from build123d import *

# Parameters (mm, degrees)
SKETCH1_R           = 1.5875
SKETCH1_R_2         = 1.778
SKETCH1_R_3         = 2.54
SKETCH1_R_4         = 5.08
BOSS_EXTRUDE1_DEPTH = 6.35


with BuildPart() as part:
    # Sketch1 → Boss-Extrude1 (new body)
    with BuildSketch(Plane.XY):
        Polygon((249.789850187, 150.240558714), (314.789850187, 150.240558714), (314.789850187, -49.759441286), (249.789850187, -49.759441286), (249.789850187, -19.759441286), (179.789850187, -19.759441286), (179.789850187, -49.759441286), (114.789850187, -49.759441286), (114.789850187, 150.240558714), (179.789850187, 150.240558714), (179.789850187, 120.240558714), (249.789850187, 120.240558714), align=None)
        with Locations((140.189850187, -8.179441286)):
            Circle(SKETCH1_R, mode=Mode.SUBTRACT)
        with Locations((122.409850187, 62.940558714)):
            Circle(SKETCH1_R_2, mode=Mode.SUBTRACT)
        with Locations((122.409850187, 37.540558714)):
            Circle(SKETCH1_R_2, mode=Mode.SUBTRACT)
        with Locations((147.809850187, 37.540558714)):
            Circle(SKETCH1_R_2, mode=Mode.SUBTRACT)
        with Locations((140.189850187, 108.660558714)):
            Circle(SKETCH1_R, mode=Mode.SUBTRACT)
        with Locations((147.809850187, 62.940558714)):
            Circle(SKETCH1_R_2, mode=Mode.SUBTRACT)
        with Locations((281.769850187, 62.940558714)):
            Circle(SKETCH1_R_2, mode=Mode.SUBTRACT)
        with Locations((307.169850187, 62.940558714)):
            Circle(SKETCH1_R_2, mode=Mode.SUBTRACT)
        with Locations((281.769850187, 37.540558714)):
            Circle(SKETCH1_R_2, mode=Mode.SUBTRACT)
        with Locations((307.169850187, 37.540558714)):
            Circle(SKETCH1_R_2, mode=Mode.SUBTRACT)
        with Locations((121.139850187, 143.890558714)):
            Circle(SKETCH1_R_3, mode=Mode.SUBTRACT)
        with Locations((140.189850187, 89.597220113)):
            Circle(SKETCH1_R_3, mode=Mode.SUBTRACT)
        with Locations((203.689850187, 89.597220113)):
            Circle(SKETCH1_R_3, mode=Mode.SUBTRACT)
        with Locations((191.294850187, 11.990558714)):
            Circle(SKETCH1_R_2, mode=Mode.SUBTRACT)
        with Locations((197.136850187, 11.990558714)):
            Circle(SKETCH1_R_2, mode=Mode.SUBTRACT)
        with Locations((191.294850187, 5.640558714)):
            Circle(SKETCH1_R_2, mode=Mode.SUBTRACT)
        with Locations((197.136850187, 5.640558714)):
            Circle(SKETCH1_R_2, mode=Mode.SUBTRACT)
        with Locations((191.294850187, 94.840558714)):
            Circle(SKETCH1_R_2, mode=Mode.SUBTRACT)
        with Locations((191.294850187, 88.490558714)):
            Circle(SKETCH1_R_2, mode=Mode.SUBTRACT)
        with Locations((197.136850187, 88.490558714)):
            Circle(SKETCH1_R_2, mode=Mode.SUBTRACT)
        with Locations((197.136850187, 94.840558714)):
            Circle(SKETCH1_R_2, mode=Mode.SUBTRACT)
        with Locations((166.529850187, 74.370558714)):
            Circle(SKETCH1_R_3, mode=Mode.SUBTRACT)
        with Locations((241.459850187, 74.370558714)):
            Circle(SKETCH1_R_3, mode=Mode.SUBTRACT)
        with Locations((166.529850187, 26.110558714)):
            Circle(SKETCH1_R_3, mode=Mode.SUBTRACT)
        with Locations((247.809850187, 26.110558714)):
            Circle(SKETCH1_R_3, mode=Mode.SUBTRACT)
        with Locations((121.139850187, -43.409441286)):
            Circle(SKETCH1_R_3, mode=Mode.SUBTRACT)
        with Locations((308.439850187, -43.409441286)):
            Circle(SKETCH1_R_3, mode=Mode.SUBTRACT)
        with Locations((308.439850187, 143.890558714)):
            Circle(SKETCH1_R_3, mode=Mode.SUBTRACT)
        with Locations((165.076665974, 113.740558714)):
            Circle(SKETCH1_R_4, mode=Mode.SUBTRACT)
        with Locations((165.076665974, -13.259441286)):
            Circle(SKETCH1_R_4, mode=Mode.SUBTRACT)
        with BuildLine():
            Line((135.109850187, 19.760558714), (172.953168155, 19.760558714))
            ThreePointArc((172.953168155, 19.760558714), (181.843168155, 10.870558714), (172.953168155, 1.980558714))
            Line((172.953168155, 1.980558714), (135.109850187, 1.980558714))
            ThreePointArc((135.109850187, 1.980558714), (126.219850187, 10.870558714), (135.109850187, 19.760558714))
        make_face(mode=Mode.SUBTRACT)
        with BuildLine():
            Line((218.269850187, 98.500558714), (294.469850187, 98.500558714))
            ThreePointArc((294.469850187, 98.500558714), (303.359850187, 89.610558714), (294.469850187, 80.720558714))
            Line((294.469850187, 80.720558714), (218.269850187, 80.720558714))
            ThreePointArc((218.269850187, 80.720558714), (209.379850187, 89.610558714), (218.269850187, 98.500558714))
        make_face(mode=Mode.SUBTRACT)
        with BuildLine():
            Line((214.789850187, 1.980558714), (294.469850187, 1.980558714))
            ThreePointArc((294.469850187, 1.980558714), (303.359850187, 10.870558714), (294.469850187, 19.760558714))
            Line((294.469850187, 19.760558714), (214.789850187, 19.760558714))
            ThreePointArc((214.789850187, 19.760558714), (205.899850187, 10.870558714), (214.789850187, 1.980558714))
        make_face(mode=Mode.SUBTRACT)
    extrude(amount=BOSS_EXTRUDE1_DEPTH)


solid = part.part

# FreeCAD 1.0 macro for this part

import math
import FreeCAD as App
import Part
import Sketcher

V = App.Vector
Q = App.Units.Quantity


def add_polygon(sketch, points):
    """Adds a closed chain of lines whose ends are joined by coincident constraints."""
    first, n = sketch.GeometryCount, len(points)
    for a, b in zip(points, points[1:] + points[:1]):
        sketch.addGeometry(Part.LineSegment(App.Vector(*a, 0), App.Vector(*b, 0)), False)
    for i in range(n):
        sketch.addConstraint(Sketcher.Constraint("Coincident", first + i, 2, first + (i + 1) % n, 1))

doc = App.newDocument("Part")
body = doc.addObject("PartDesign::Body", "Body")

# Sketch on XY plane
sketch1 = body.newObject("Sketcher::SketchObject", "Sketch")
sketch1.AttachmentSupport = (doc.getObject("XY_Plane"), [""])
sketch1.MapMode = "FlatFace"
add_polygon(sketch1, [(314.8, 150.2), (249.8, 150.2), (249.8, 120.2), (179.8, 120.2), (179.8, 150.2), (114.8, 150.2), (114.8, -49.8), (179.8, -49.8), (179.8, -19.8), (249.8, -19.8), (249.8, -49.8), (314.8, -49.8)])  # lines 0-11
sketch1.addGeometry(Part.Circle(V(308.4, -43.4, 0), V(0, 0, 1), 2.5), False)  # 12
sketch1.addGeometry(Part.Circle(V(307.2, 37.5, 0), V(0, 0, 1), 1.8), False)  # 13
sketch1.addGeometry(Part.Circle(V(281.8, 37.5, 0), V(0, 0, 1), 1.8), False)  # 14
sketch1.addGeometry(Part.ArcOfCircle(Part.Circle(V(214.8, 10.9, 0), V(0, 0, 1), 8.9), math.radians(90), math.radians(270)), False)  # 15
sketch1.addGeometry(Part.LineSegment(V(214.8, 19.8, 0), V(294.5, 19.8, 0)), False)  # 16
sketch1.addGeometry(Part.ArcOfCircle(Part.Circle(V(294.5, 10.9, 0), V(0, 0, 1), 8.9), math.radians(-90), math.radians(90)), False)  # 17
sketch1.addGeometry(Part.LineSegment(V(294.5, 2, 0), V(214.8, 2, 0)), False)  # 18
sketch1.addGeometry(Part.Circle(V(247.8, 26.1, 0), V(0, 0, 1), 2.5), False)  # 19
sketch1.addGeometry(Part.Circle(V(121.1, -43.4, 0), V(0, 0, 1), 2.5), False)  # 20
sketch1.addGeometry(Part.Circle(V(165.1, -13.3, 0), V(0, 0, 1), 5.1), False)  # 21
sketch1.addGeometry(Part.Circle(V(140.2, -8.2, 0), V(0, 0, 1), 1.6), False)  # 22
sketch1.addGeometry(Part.Circle(V(197.1, 5.6, 0), V(0, 0, 1), 1.8), False)  # 23
sketch1.addGeometry(Part.Circle(V(191.3, 5.6, 0), V(0, 0, 1), 1.8), False)  # 24
sketch1.addGeometry(Part.Circle(V(197.1, 12, 0), V(0, 0, 1), 1.8), False)  # 25
sketch1.addGeometry(Part.Circle(V(191.3, 12, 0), V(0, 0, 1), 1.8), False)  # 26
sketch1.addGeometry(Part.LineSegment(V(135.1, 19.8, 0), V(173, 19.8, 0)), False)  # 27
sketch1.addGeometry(Part.ArcOfCircle(Part.Circle(V(173, 10.9, 0), V(0, 0, 1), 8.9), math.radians(-90), math.radians(90)), False)  # 28
sketch1.addGeometry(Part.LineSegment(V(173, 2, 0), V(135.1, 2, 0)), False)  # 29
sketch1.addGeometry(Part.ArcOfCircle(Part.Circle(V(135.1, 10.9, 0), V(0, 0, 1), 8.9), math.radians(90), math.radians(270)), False)  # 30
sketch1.addGeometry(Part.Circle(V(166.5, 26.1, 0), V(0, 0, 1), 2.5), False)  # 31
sketch1.addGeometry(Part.Circle(V(147.8, 37.5, 0), V(0, 0, 1), 1.8), False)  # 32
sketch1.addGeometry(Part.Circle(V(122.4, 37.5, 0), V(0, 0, 1), 1.8), False)  # 33
sketch1.addGeometry(Part.Circle(V(307.2, 62.9, 0), V(0, 0, 1), 1.8), False)  # 34
sketch1.addGeometry(Part.Circle(V(281.8, 62.9, 0), V(0, 0, 1), 1.8), False)  # 35
sketch1.addGeometry(Part.Circle(V(241.5, 74.4, 0), V(0, 0, 1), 2.5), False)  # 36
sketch1.addGeometry(Part.LineSegment(V(218.3, 98.5, 0), V(294.5, 98.5, 0)), False)  # 37
sketch1.addGeometry(Part.ArcOfCircle(Part.Circle(V(294.5, 89.6, 0), V(0, 0, 1), 8.9), math.radians(-90), math.radians(90)), False)  # 38
sketch1.addGeometry(Part.LineSegment(V(294.5, 80.7, 0), V(218.3, 80.7, 0)), False)  # 39
sketch1.addGeometry(Part.ArcOfCircle(Part.Circle(V(218.3, 89.6, 0), V(0, 0, 1), 8.9), math.radians(90), math.radians(270)), False)  # 40
sketch1.addGeometry(Part.Circle(V(308.4, 143.9, 0), V(0, 0, 1), 2.5), False)  # 41
sketch1.addGeometry(Part.Circle(V(203.7, 89.6, 0), V(0, 0, 1), 2.5), False)  # 42
sketch1.addGeometry(Part.Circle(V(197.1, 88.5, 0), V(0, 0, 1), 1.8), False)  # 43
sketch1.addGeometry(Part.Circle(V(191.3, 88.5, 0), V(0, 0, 1), 1.8), False)  # 44
sketch1.addGeometry(Part.Circle(V(197.1, 94.8, 0), V(0, 0, 1), 1.8), False)  # 45
sketch1.addGeometry(Part.Circle(V(191.3, 94.8, 0), V(0, 0, 1), 1.8), False)  # 46
sketch1.addGeometry(Part.Circle(V(147.8, 62.9, 0), V(0, 0, 1), 1.8), False)  # 47
sketch1.addGeometry(Part.Circle(V(122.4, 62.9, 0), V(0, 0, 1), 1.8), False)  # 48
sketch1.addGeometry(Part.Circle(V(166.5, 74.4, 0), V(0, 0, 1), 2.5), False)  # 49
sketch1.addGeometry(Part.Circle(V(140.2, 89.6, 0), V(0, 0, 1), 2.5), False)  # 50
sketch1.addGeometry(Part.Circle(V(165.1, 113.7, 0), V(0, 0, 1), 5.1), False)  # 51
sketch1.addGeometry(Part.Circle(V(140.2, 108.7, 0), V(0, 0, 1), 1.6), False)  # 52
sketch1.addGeometry(Part.Circle(V(121.1, 143.9, 0), V(0, 0, 1), 2.5), False)  # 53
sketch1.addConstraint([
    Sketcher.Constraint("Tangent", 15, 1, 16, 1),
    Sketcher.Constraint("Tangent", 16, 2, 17, 2),
    Sketcher.Constraint("Tangent", 17, 1, 18, 1),
    Sketcher.Constraint("Tangent", 18, 2, 15, 2),
    Sketcher.Constraint("Tangent", 27, 2, 28, 2),
    Sketcher.Constraint("Tangent", 28, 1, 29, 1),
    Sketcher.Constraint("Tangent", 29, 2, 30, 2),
    Sketcher.Constraint("Tangent", 30, 1, 27, 1),
    Sketcher.Constraint("Tangent", 37, 2, 38, 2),
    Sketcher.Constraint("Tangent", 38, 1, 39, 1),
    Sketcher.Constraint("Tangent", 39, 2, 40, 2),
    Sketcher.Constraint("Tangent", 40, 1, 37, 1),
    Sketcher.Constraint("Horizontal", 0),
    Sketcher.Constraint("Vertical", 1),
    Sketcher.Constraint("Horizontal", 2),
    Sketcher.Constraint("Vertical", 3),
    Sketcher.Constraint("Horizontal", 4),
    Sketcher.Constraint("Vertical", 5),
    Sketcher.Constraint("Horizontal", 6),
    Sketcher.Constraint("Vertical", 7),
    Sketcher.Constraint("Horizontal", 8),
    Sketcher.Constraint("Vertical", 9),
    Sketcher.Constraint("Horizontal", 10),
    Sketcher.Constraint("Vertical", 11),
    Sketcher.Constraint("Horizontal", 16),
    Sketcher.Constraint("Horizontal", 18),
    Sketcher.Constraint("Horizontal", 27),
    Sketcher.Constraint("Horizontal", 29),
    Sketcher.Constraint("Horizontal", 37),
    Sketcher.Constraint("Horizontal", 39),
    Sketcher.Constraint("Equal", 13, 14),
    Sketcher.Constraint("Equal", 12, 19),
    Sketcher.Constraint("Equal", 19, 20),
    Sketcher.Constraint("Equal", 14, 23),
    Sketcher.Constraint("Equal", 23, 24),
    Sketcher.Constraint("Equal", 24, 25),
    Sketcher.Constraint("Equal", 25, 26),
    Sketcher.Constraint("Equal", 17, 28),
    Sketcher.Constraint("Equal", 20, 31),
    Sketcher.Constraint("Equal", 26, 32),
    Sketcher.Constraint("Equal", 32, 33),
    Sketcher.Constraint("Equal", 33, 34),
    Sketcher.Constraint("Equal", 34, 35),
    Sketcher.Constraint("Equal", 31, 36),
    Sketcher.Constraint("Equal", 30, 38),
    Sketcher.Constraint("Equal", 36, 41),
    Sketcher.Constraint("Equal", 41, 42),
    Sketcher.Constraint("Equal", 35, 43),
    Sketcher.Constraint("Equal", 43, 44),
    Sketcher.Constraint("Equal", 44, 45),
    Sketcher.Constraint("Equal", 45, 46),
    Sketcher.Constraint("Equal", 46, 47),
    Sketcher.Constraint("Equal", 47, 48),
    Sketcher.Constraint("Equal", 42, 49),
    Sketcher.Constraint("Equal", 49, 50),
    Sketcher.Constraint("Equal", 21, 51),
    Sketcher.Constraint("Equal", 22, 52),
    Sketcher.Constraint("Equal", 50, 53),
    Sketcher.Constraint("Horizontal", 13, 3, 14, 3),
    Sketcher.Constraint("Horizontal", 12, 3, 20, 3),
    Sketcher.Constraint("Horizontal", 23, 3, 24, 3),
    Sketcher.Constraint("Horizontal", 25, 3, 26, 3),
    Sketcher.Constraint("Horizontal", 17, 3, 28, 3),
    Sketcher.Constraint("Horizontal", 19, 3, 31, 3),
    Sketcher.Constraint("Horizontal", 14, 3, 32, 3),
    Sketcher.Constraint("Horizontal", 32, 3, 33, 3),
    Sketcher.Constraint("Horizontal", 34, 3, 35, 3),
    Sketcher.Constraint("Horizontal", 43, 3, 44, 3),
    Sketcher.Constraint("Horizontal", 45, 3, 46, 3),
    Sketcher.Constraint("Horizontal", 35, 3, 47, 3),
    Sketcher.Constraint("Horizontal", 47, 3, 48, 3),
    Sketcher.Constraint("Horizontal", 36, 3, 49, 3),
    Sketcher.Constraint("Horizontal", 42, 3, 50, 3),
    Sketcher.Constraint("Horizontal", 41, 3, 53, 3),
    Sketcher.Constraint("Horizontal", 0, 2, 3, 2),
    Sketcher.Constraint("Horizontal", 6, 2, 9, 2),
    Sketcher.Constraint("Vertical", 23, 3, 25, 3),
    Sketcher.Constraint("Vertical", 24, 3, 26, 3),
    Sketcher.Constraint("Vertical", 13, 3, 34, 3),
    Sketcher.Constraint("Vertical", 14, 3, 35, 3),
    Sketcher.Constraint("Vertical", 17, 3, 38, 3),
    Sketcher.Constraint("Vertical", 12, 3, 41, 3),
    Sketcher.Constraint("Vertical", 25, 3, 43, 3),
    Sketcher.Constraint("Vertical", 26, 3, 44, 3),
    Sketcher.Constraint("Vertical", 43, 3, 45, 3),
    Sketcher.Constraint("Vertical", 44, 3, 46, 3),
    Sketcher.Constraint("Vertical", 32, 3, 47, 3),
    Sketcher.Constraint("Vertical", 33, 3, 48, 3),
    Sketcher.Constraint("Vertical", 31, 3, 49, 3),
    Sketcher.Constraint("Vertical", 22, 3, 50, 3),
    Sketcher.Constraint("Vertical", 21, 3, 51, 3),
    Sketcher.Constraint("Vertical", 50, 3, 52, 3),
    Sketcher.Constraint("Vertical", 20, 3, 53, 3),
    Sketcher.Constraint("Vertical", 3, 2, 6, 2),
    Sketcher.Constraint("Vertical", 1, 2, 8, 2),
    Sketcher.Constraint("Equal", 0, 4),
    Sketcher.Constraint("Equal", 3, 7),
    Sketcher.Constraint("Diameter", 12, Q("0.2 in")),
    Sketcher.Constraint("Diameter", 21, Q("0.4 in")),
    Sketcher.Constraint("Diameter", 13, Q("0.14 in")),
    Sketcher.Constraint("DistanceX", 37, 1, 37, 2, Q("3 in")),
    Sketcher.Constraint("Radius", 15, Q("0.35 in")),
    Sketcher.Constraint("Diameter", 22, Q("0.125 in")),
    Sketcher.Constraint("DistanceX", 14, 3, 13, 3, Q("1 in")),
    Sketcher.Constraint("DistanceY", 21, 3, 14, 3, Q("2 in")),
    Sketcher.Constraint("DistanceX", 33, 3, 32, 3, Q("1 in")),
    Sketcher.Constraint("DistanceY", 13, 3, 34, 3, Q("1 in")),
    Sketcher.Constraint("DistanceY", 46, 3, 2, 2, Q("1 in")),
    Sketcher.Constraint("DistanceX", 4, 2, 52, 3, Q("1 in")),
    Sketcher.Constraint("DistanceY", 7, 2, 24, 3, Q("1 in")),
    Sketcher.Constraint("DistanceX", 17, 3, 13, 3, Q("0.5 in")),
    Sketcher.Constraint("DistanceX", 15, 3, 19, 3, Q("1.3 in")),
    Sketcher.Constraint("DistanceY", 15, 3, 19, 3, Q("0.6 in")),
    Sketcher.Constraint("DistanceY", 21, 3, 22, 3, Q("0.2 in")),
    Sketcher.Constraint("DistanceX", 30, 3, 22, 3, Q("0.2 in")),
    Sketcher.Constraint("DistanceX", 30, 3, 32, 3, Q("0.5 in")),
    Sketcher.Constraint("DistanceY", 19, 3, 36, 3, Q("1.9 in")),
    Sketcher.Constraint("DistanceY", 36, 3, 38, 3, Q("0.6 in")),
    Sketcher.Constraint("DistanceX", 32, 3, 42, 3, Q("2.2 in")),
    Sketcher.Constraint("DistanceY", 52, 3, 51, 3, Q("0.2 in")),
    Sketcher.Constraint("DistanceY", 47, 3, 52, 3, Q("1.8 in")),
    Sketcher.Constraint("DistanceX", 17, 3, 10, 2, Q("0.8 in")),
    Sketcher.Constraint("DistanceY", 16, 2, 13, 3, Q("0.7 in")),
    Sketcher.Constraint("DistanceX", 13, 3, 12, 3, Q("0.05 in")),
    Sketcher.Constraint("DistanceX", 20, 3, 22, 3, Q("0.75 in")),
    Sketcher.Constraint("DistanceX", 24, 3, 23, 3, Q("0.23 in")),
    Sketcher.Constraint("DistanceY", 23, 3, 25, 3, Q("0.25 in")),
    Sketcher.Constraint("DistanceX", 36, 3, 19, 3, Q("0.25 in")),
    Sketcher.Constraint("DistanceY", 43, 3, 45, 3, Q("0.25 in")),
    Sketcher.Constraint("DistanceY", 41, 3, 0, 2, Q("0.25 in")),
    Sketcher.Constraint("DistanceY", 5, 2, 20, 3, Q("0.25 in")),
    Sketcher.Constraint("DistanceX", 23, 3, 15, 3, Q("0.695 in")),
    Sketcher.Constraint("DistanceX", 31, 3, 26, 3, Q("0.975 in")),
    Sketcher.Constraint("DistanceX", 0, 2, 0, 1, Q("65 mm")),
    Sketcher.Constraint("DistanceX", 2, 2, 2, 1, Q("70 mm")),
    Sketcher.Constraint("DistanceX", 16, 1, 16, 2, Q("79.68 mm")),
    Sketcher.Constraint("DistanceY", 1, 2, 1, 1, Q("30 mm")),
    Sketcher.Constraint("DistanceY", 5, 2, 5, 1, Q("200 mm")),
    Sketcher.Constraint("DistanceY", 12, 3, 13, 3, Q("80.95 mm")),
    Sketcher.Constraint("DistanceX", 27, 1, 27, 2, Q("37.843318 mm")),
    Sketcher.Constraint("DistanceX", -1, 1, 12, 3, Q("308.43985 mm")),
    Sketcher.Constraint("DistanceY", 12, 3, -1, 1, Q("43.409441 mm")),
    Sketcher.Constraint("DistanceY", -1, 1, 42, 3, Q("89.59722 mm")),
    Sketcher.Constraint("DistanceX", -1, 1, 21, 3, Q("165.076666 mm")),
])
pad1 = body.newObject("PartDesign::Pad", "Pad")
pad1.Profile = sketch1
pad1.Length = Q("0.25 in")

doc.recompute()
